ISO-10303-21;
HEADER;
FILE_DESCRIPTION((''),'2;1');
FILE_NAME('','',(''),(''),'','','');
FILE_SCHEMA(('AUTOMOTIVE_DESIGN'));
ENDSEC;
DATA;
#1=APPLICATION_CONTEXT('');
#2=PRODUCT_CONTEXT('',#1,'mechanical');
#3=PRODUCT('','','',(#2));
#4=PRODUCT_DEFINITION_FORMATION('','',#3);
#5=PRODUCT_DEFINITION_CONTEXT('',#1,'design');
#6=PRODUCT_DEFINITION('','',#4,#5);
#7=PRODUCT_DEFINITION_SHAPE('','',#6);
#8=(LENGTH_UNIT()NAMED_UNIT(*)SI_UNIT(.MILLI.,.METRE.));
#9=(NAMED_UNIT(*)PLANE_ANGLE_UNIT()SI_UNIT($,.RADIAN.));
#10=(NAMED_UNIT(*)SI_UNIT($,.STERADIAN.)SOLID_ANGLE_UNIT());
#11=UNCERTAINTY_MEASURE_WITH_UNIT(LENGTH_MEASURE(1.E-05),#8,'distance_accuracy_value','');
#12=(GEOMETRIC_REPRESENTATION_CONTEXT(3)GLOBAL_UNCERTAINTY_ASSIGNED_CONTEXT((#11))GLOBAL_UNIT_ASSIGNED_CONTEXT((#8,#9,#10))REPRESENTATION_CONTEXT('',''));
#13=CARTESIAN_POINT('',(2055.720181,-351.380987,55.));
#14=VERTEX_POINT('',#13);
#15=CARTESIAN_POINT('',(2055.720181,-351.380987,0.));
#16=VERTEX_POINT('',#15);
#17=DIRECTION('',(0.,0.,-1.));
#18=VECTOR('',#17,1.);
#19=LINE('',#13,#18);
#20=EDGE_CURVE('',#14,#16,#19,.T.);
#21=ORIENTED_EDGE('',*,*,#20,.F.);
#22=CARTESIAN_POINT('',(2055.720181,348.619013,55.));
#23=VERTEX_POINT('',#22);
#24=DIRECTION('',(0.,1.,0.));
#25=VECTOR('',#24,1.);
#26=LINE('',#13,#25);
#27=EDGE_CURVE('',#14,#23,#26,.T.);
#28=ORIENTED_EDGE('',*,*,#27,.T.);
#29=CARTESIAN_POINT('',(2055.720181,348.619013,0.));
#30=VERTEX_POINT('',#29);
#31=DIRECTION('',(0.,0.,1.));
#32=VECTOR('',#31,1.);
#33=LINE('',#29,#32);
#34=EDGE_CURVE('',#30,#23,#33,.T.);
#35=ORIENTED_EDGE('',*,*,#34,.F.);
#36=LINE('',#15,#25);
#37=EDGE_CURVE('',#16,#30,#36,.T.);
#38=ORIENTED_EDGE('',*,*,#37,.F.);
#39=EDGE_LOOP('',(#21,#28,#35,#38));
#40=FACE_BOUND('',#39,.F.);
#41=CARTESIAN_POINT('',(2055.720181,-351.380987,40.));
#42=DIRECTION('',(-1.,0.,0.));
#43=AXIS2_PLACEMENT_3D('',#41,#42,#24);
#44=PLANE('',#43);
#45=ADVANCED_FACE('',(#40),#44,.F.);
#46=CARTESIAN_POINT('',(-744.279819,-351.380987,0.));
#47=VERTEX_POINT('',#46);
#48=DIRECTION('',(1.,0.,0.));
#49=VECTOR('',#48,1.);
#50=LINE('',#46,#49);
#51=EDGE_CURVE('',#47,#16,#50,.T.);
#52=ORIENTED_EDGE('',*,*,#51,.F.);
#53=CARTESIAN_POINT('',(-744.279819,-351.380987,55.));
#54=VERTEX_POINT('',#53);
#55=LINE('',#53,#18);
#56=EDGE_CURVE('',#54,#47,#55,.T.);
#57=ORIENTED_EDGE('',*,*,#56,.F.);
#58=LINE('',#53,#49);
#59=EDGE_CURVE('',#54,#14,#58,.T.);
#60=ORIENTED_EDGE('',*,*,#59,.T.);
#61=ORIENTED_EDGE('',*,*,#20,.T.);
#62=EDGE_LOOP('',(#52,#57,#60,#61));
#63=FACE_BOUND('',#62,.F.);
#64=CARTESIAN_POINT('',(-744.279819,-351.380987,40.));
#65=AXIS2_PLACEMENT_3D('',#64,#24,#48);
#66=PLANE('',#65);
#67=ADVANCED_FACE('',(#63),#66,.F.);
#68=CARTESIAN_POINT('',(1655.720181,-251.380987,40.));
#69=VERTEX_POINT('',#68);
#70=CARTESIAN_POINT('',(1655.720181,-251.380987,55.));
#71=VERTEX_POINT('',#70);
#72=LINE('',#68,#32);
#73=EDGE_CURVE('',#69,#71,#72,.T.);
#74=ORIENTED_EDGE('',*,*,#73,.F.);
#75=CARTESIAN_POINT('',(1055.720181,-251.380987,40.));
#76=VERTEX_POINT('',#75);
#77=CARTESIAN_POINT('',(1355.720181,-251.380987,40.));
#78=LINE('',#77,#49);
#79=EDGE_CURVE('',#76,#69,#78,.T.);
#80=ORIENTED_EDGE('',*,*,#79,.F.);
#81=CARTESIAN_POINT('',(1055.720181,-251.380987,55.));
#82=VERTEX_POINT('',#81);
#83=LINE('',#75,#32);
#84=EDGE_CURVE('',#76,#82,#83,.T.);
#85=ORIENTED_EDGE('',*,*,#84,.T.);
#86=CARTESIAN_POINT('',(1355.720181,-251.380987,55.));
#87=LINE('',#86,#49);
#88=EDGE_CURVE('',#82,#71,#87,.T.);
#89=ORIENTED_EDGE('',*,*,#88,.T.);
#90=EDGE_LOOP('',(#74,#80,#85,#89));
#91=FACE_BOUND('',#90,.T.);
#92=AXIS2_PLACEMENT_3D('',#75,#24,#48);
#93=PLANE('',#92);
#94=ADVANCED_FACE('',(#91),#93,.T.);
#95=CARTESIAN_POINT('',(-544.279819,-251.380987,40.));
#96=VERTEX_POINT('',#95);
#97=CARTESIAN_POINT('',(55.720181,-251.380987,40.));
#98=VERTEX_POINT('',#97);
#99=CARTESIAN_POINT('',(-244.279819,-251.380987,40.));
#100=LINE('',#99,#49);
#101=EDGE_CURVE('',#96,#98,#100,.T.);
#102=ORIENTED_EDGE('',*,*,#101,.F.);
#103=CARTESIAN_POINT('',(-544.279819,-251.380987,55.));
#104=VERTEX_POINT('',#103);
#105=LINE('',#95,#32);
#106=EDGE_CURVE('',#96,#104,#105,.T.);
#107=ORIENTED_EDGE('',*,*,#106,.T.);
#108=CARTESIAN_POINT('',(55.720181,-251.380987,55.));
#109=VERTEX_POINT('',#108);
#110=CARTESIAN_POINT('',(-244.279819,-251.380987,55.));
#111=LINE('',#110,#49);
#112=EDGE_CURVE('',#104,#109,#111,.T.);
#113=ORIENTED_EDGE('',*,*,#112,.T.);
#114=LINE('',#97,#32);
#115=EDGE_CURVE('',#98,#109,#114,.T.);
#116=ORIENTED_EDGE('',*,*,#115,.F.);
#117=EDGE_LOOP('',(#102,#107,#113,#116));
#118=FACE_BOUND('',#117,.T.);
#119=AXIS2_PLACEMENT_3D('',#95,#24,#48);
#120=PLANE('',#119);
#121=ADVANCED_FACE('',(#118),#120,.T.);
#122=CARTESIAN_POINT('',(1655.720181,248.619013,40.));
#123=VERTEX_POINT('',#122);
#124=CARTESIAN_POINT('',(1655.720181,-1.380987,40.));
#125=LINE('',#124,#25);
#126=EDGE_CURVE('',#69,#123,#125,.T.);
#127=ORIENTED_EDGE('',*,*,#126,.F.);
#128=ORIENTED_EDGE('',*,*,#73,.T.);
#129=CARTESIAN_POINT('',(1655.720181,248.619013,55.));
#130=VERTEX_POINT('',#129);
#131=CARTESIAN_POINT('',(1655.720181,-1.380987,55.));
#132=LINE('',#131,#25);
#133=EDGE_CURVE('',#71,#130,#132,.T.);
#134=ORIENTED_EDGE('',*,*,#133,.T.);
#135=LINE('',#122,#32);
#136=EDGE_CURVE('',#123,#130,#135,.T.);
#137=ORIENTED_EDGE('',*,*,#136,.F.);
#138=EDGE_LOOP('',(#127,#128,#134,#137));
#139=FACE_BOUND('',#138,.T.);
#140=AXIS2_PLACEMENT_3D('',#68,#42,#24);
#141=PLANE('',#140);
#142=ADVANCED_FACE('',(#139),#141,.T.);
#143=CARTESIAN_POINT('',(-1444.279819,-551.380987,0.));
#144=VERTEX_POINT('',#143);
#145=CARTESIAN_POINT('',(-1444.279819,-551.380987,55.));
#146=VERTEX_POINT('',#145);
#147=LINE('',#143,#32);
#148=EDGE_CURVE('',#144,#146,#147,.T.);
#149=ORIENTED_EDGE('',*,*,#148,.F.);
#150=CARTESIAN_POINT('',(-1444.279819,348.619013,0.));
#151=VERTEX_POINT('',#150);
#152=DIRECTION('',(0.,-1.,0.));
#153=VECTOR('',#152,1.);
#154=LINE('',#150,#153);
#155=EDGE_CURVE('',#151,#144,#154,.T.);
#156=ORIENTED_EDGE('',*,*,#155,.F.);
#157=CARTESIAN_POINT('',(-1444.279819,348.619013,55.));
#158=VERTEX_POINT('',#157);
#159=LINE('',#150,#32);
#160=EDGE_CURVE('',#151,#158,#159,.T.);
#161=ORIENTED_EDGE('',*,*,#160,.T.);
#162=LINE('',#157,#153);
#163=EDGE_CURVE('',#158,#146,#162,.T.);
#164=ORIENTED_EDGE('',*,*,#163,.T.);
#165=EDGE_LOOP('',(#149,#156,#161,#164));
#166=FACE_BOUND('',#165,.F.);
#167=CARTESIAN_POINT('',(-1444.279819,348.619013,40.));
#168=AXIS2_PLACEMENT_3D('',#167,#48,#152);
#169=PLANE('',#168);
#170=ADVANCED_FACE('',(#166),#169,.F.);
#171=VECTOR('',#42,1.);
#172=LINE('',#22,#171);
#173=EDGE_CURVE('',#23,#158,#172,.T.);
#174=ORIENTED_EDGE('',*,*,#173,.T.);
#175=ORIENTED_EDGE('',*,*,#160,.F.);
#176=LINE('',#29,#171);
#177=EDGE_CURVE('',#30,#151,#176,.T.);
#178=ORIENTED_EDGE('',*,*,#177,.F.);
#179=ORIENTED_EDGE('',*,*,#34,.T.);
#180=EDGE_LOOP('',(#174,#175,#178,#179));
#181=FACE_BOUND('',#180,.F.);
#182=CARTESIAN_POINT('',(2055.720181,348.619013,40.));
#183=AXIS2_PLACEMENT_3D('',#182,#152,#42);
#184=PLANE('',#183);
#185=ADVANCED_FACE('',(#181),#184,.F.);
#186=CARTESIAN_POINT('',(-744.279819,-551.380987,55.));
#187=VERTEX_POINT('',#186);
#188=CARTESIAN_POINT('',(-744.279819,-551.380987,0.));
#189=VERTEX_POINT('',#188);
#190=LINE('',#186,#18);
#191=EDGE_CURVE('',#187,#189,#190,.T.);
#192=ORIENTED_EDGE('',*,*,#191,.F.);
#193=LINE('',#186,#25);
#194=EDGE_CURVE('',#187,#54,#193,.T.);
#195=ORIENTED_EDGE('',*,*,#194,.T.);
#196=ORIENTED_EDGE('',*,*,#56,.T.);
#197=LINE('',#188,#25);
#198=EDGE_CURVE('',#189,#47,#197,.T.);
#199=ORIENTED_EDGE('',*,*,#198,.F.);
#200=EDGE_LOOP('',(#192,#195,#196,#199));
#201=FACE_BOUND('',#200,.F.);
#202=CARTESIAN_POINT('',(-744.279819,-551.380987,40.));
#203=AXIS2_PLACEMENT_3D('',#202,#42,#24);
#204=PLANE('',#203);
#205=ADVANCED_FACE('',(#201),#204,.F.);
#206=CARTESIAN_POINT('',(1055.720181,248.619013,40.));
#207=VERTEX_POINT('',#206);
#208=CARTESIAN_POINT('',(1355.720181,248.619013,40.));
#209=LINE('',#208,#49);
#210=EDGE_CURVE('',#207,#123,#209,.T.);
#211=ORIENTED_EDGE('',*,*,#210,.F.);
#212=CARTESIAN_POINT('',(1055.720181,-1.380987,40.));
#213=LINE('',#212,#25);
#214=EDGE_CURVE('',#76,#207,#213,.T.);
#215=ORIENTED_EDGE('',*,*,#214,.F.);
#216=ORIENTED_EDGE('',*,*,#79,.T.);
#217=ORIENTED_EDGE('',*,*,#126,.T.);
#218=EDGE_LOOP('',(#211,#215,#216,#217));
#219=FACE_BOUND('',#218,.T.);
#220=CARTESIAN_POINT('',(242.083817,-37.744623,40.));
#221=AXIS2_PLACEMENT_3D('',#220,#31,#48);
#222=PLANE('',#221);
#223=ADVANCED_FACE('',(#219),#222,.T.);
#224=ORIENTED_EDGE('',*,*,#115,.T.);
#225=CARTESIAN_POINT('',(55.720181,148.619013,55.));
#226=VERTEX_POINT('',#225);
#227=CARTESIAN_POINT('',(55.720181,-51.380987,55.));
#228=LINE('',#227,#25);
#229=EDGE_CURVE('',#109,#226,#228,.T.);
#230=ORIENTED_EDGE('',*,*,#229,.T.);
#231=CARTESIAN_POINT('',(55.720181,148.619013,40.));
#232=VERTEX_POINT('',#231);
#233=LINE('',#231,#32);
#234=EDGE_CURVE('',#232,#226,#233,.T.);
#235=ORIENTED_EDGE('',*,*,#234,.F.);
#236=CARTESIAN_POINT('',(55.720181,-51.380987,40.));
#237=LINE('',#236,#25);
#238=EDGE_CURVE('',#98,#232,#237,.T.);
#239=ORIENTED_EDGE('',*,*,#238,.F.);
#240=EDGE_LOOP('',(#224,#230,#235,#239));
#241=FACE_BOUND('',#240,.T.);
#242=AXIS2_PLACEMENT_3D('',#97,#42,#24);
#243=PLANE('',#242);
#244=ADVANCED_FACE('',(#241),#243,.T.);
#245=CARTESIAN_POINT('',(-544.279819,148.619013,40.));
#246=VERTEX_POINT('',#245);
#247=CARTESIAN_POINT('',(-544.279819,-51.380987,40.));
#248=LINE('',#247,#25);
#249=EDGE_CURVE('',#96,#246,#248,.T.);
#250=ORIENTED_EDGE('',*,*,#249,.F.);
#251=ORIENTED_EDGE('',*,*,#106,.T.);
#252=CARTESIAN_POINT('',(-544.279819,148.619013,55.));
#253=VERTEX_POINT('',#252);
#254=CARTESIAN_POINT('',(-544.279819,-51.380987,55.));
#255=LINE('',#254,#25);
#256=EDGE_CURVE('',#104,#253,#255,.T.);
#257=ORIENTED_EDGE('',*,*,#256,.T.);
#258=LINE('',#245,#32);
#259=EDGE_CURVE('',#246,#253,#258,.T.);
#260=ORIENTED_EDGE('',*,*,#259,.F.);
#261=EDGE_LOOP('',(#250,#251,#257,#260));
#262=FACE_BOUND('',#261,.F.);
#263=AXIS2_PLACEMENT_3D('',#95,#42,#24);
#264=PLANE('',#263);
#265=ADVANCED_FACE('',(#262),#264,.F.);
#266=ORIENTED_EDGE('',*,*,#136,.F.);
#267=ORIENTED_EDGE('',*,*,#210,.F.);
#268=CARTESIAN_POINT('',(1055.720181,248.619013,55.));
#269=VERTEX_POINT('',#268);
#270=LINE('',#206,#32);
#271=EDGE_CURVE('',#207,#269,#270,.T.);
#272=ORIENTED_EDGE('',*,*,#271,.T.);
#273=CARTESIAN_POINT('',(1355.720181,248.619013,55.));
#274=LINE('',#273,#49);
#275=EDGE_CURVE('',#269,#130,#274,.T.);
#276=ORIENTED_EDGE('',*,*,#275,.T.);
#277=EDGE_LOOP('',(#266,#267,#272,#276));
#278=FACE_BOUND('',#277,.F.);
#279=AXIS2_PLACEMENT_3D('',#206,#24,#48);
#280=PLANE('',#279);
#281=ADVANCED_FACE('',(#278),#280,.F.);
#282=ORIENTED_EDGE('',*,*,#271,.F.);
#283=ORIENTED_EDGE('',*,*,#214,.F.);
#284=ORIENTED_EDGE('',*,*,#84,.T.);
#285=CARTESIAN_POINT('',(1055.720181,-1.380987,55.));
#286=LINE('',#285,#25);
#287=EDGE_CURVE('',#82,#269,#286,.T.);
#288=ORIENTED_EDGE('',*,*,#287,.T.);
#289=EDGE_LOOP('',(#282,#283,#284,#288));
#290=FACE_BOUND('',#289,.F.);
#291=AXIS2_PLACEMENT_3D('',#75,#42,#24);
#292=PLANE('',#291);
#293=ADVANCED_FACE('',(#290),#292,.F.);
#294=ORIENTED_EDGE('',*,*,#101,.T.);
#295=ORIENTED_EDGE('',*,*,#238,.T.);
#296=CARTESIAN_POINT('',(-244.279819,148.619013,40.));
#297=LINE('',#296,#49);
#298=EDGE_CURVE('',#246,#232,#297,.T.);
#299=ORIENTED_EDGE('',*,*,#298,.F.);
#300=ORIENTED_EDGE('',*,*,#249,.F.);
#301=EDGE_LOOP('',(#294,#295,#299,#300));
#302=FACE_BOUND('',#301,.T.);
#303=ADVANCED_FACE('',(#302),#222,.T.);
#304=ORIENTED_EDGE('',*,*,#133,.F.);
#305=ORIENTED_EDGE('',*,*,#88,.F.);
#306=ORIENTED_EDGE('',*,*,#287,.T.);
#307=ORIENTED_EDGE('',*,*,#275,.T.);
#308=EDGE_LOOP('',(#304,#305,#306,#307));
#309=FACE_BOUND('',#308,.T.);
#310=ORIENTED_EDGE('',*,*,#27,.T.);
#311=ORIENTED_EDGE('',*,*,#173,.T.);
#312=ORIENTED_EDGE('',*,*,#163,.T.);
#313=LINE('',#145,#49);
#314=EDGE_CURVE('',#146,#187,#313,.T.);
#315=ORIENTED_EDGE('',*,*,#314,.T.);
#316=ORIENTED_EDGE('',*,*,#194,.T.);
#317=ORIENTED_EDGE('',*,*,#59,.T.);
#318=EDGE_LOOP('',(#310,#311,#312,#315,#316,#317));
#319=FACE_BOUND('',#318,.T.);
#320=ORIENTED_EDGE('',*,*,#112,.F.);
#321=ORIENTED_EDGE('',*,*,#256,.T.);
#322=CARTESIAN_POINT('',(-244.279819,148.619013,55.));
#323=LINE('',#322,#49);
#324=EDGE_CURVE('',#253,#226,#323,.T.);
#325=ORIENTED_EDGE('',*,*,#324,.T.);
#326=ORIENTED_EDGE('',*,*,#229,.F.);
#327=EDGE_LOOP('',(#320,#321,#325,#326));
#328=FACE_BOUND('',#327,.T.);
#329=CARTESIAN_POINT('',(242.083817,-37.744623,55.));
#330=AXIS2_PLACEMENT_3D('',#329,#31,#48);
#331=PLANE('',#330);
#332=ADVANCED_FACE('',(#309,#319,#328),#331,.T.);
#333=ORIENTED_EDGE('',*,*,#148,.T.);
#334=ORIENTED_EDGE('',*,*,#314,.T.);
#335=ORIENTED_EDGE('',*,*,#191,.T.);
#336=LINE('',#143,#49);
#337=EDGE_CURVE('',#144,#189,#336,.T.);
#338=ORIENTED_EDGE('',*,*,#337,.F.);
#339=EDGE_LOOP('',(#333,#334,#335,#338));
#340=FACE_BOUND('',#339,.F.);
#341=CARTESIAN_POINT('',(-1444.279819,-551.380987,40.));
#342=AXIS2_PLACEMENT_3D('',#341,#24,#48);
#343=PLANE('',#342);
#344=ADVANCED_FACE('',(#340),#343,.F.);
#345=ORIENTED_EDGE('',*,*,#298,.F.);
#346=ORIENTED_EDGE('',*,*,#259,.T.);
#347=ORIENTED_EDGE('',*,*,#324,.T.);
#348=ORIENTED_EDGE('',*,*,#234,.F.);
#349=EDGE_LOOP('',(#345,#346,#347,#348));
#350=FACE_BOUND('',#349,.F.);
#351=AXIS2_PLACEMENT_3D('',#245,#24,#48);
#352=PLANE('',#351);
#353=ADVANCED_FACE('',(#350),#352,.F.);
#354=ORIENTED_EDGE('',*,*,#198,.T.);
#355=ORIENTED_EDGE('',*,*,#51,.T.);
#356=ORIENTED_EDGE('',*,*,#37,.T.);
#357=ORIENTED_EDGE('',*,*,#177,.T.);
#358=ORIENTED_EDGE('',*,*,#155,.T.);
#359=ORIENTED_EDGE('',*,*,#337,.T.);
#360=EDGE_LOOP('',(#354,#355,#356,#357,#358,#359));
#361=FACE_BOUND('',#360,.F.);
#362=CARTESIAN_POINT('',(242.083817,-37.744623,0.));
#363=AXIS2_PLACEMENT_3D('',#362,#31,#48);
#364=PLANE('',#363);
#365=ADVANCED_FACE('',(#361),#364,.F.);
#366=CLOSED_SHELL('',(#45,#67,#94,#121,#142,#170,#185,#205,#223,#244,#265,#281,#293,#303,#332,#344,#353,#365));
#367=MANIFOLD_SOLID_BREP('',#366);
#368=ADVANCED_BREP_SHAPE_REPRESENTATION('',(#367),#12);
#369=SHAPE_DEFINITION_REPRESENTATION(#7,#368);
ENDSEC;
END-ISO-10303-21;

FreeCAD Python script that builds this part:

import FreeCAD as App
import Part
import Sketcher
from FreeCAD import Vector


def add_polygon(sketch, points):
    """Adds a closed chain of lines whose ends are joined by coincident constraints."""
    first, n = sketch.GeometryCount, len(points)
    for a, b in zip(points, points[1:] + points[:1]):
        sketch.addGeometry(Part.LineSegment(App.Vector(*a, 0), App.Vector(*b, 0)), False)
    for i in range(n):
        sketch.addConstraint(Sketcher.Constraint("Coincident", first + i, 2, first + (i + 1) % n, 1))

doc = App.newDocument("Part")
body = doc.addObject("PartDesign::Body", "Body")

# Sketch on XY plane
sketch1 = body.newObject("Sketcher::SketchObject", "Sketch")
sketch1.AttachmentSupport = (doc.getObject("XY_Plane"), [""])
sketch1.MapMode = "FlatFace"
add_polygon(sketch1, [(2056, 349), (-1444, 349), (-1444, -551), (-744, -551), (-744, -351), (2056, -351)])  # lines 0-5
sketch1.addConstraint([
    Sketcher.Constraint("Horizontal", 0),
    Sketcher.Constraint("Vertical", 1),
    Sketcher.Constraint("Horizontal", 2),
    Sketcher.Constraint("Vertical", 3),
    Sketcher.Constraint("Horizontal", 4),
    Sketcher.Constraint("Vertical", 5),
    Sketcher.Constraint("Equal", 2, 5),
    Sketcher.Constraint("DistanceX", 0, 2, 0, 1, 3500.0),
    Sketcher.Constraint("DistanceX", 2, 1, 2, 2, 700.0),
    Sketcher.Constraint("DistanceY", 1, 2, 1, 1, 900.0),
    Sketcher.Constraint("DistanceX", 0, 2, -1, 1, 1444.279819),
    Sketcher.Constraint("DistanceY", -1, 1, 0, 2, 348.619013),
])
pad1 = body.newObject("PartDesign::Pad", "Pad")
pad1.Profile = sketch1
pad1.Length = 40

# Sketch on XY plane
sketch2 = body.newObject("Sketcher::SketchObject", "Sketch001")
sketch2.AttachmentSupport = (doc.getObject("XY_Plane"), [""])
sketch2.MapMode = "FlatFace"
sketch2.AttachmentOffset = App.Placement(Vector(0, 0, 40), App.Rotation())
add_polygon(sketch2, [(2056, -351), (2056, 349), (-1444, 349), (-1444, -551), (-744, -551), (-744, -351)])  # lines 0-5
add_polygon(sketch2, [(56, -251), (-544, -251), (-544, 149), (56, 149)])  # lines 6-9
add_polygon(sketch2, [(1656, -251), (1056, -251), (1056, 249), (1656, 249)])  # lines 10-13
sketch2.addConstraint([
    Sketcher.Constraint("Vertical", 0),
    Sketcher.Constraint("Horizontal", 1),
    Sketcher.Constraint("Vertical", 2),
    Sketcher.Constraint("Horizontal", 3),
    Sketcher.Constraint("Vertical", 4),
    Sketcher.Constraint("Horizontal", 5),
    Sketcher.Constraint("Horizontal", 6),
    Sketcher.Constraint("Vertical", 7),
    Sketcher.Constraint("Horizontal", 8),
    Sketcher.Constraint("Vertical", 9),
    Sketcher.Constraint("Horizontal", 10),
    Sketcher.Constraint("Vertical", 11),
    Sketcher.Constraint("Horizontal", 12),
    Sketcher.Constraint("Vertical", 13),
    Sketcher.Constraint("Horizontal", 9, 2, 10, 2),
    Sketcher.Constraint("Equal", 8, 10),
    Sketcher.Constraint("Equal", 3, 0),
    Sketcher.Constraint("DistanceX", 1, 2, 1, 1, 3500.0),
    Sketcher.Constraint("DistanceX", 3, 1, 3, 2, 700.0),
    Sketcher.Constraint("DistanceX", 6, 2, 6, 1, 600.0),
    Sketcher.Constraint("DistanceY", 2, 2, 2, 1, 900.0),
    Sketcher.Constraint("DistanceY", 7, 1, 7, 2, 400.0),
    Sketcher.Constraint("DistanceY", 11, 1, 11, 2, 500.0),
    Sketcher.Constraint("DistanceX", 4, 2, 6, 2, 200.0),
    Sketcher.Constraint("DistanceY", 4, 2, 6, 2, 100.0),
    Sketcher.Constraint("DistanceX", 9, 2, 10, 2, 1000.0),
    Sketcher.Constraint("DistanceX", -1, 1, 0, 2, 2055.720181),
    Sketcher.Constraint("DistanceY", -1, 1, 0, 2, 348.619013),
])
pad2 = body.newObject("PartDesign::Pad", "Pad001")
pad2.Profile = sketch2
pad2.Length = 15

doc.recompute()
